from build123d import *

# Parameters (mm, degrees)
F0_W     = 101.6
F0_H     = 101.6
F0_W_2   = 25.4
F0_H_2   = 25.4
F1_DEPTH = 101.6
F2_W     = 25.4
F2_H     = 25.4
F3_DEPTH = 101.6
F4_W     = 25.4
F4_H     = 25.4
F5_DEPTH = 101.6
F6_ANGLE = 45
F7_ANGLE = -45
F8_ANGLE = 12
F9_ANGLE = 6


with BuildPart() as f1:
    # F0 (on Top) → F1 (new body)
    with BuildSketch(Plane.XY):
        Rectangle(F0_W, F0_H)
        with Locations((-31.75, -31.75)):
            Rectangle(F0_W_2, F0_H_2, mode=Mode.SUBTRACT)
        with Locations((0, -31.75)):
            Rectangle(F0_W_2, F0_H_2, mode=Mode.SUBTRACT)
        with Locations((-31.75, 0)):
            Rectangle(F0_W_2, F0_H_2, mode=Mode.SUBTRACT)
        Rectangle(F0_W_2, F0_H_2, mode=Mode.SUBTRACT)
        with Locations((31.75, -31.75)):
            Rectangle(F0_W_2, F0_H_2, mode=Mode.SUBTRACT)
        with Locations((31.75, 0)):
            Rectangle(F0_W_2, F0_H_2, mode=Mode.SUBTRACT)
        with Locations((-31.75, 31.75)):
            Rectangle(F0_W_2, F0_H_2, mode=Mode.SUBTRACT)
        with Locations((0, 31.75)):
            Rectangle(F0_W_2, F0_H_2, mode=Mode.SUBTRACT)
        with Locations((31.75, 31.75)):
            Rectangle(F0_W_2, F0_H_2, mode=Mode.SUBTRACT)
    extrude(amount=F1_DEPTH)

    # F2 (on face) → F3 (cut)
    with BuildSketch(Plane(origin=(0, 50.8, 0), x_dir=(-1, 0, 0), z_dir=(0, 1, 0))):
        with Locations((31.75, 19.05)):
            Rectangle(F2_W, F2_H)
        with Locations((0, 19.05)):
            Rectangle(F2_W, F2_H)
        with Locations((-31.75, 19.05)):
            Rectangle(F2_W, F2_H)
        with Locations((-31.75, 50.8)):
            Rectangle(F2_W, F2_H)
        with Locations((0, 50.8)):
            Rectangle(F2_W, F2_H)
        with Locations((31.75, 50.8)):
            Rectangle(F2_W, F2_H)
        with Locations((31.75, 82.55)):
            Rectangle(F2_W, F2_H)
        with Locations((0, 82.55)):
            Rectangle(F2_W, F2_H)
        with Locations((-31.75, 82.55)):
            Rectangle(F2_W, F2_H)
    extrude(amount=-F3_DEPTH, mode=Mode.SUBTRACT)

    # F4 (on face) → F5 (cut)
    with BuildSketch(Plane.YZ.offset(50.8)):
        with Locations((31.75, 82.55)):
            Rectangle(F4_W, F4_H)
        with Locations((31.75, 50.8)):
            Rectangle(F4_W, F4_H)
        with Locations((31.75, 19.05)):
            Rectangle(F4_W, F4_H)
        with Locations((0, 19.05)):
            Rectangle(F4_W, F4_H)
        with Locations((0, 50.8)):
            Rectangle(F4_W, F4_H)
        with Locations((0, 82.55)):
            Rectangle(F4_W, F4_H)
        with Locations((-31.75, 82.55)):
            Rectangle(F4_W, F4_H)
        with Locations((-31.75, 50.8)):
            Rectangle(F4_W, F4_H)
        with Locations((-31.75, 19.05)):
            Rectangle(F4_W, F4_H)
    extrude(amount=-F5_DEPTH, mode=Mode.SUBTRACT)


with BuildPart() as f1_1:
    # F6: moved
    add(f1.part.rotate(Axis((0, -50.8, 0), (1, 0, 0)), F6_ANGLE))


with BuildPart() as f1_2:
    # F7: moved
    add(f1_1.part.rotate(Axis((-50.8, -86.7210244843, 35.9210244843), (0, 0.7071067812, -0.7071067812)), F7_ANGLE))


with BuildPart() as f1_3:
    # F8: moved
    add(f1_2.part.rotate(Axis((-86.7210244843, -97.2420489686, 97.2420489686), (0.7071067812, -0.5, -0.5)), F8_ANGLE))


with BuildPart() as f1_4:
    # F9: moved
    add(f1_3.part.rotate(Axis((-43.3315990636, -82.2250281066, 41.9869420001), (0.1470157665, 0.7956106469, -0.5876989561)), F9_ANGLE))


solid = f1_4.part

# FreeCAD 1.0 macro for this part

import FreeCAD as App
import Part
import Sketcher
from FreeCAD import Vector
Q = App.Units.Quantity


def add_polygon(sketch, points):
    """Adds a closed chain of lines whose ends are joined by coincident constraints."""
    first, n = sketch.GeometryCount, len(points)
    for a, b in zip(points, points[1:] + points[:1]):
        sketch.addGeometry(Part.LineSegment(App.Vector(*a, 0), App.Vector(*b, 0)), False)
    for i in range(n):
        sketch.addConstraint(Sketcher.Constraint("Coincident", first + i, 2, first + (i + 1) % n, 1))

doc = App.newDocument("Part")
body = doc.addObject("PartDesign::Body", "Body")

# Sketch on XY plane
sketch1 = body.newObject("Sketcher::SketchObject", "Sketch")
sketch1.AttachmentSupport = (doc.getObject("XY_Plane"), [""])
sketch1.MapMode = "FlatFace"
add_polygon(sketch1, [(-51, 51), (-51, -51), (51, -51), (51, 51)])  # lines 0-3
add_polygon(sketch1, [(-19, -44), (-44, -44), (-44, -19), (-19, -19)])  # lines 4-7
add_polygon(sketch1, [(13, -44), (-13, -44), (-13, -19), (13, -19)])  # lines 8-11
add_polygon(sketch1, [(44, -44), (19, -44), (19, -19), (44, -19)])  # lines 12-15
add_polygon(sketch1, [(-19, -13), (-44, -13), (-44, 13), (-19, 13)])  # lines 16-19
add_polygon(sketch1, [(-19, 19), (-44, 19), (-44, 44), (-19, 44)])  # lines 20-23
add_polygon(sketch1, [(13, -13), (-13, -13), (-13, 13), (13, 13)])  # lines 24-27
add_polygon(sketch1, [(44, -13), (19, -13), (19, 13), (44, 13)])  # lines 28-31
add_polygon(sketch1, [(13, 19), (-13, 19), (-13, 44), (13, 44)])  # lines 32-35
add_polygon(sketch1, [(44, 19), (19, 19), (19, 44), (44, 44)])  # lines 36-39
sketch1.addConstraint([
    Sketcher.Constraint("Vertical", 0),
    Sketcher.Constraint("Horizontal", 1),
    Sketcher.Constraint("Vertical", 2),
    Sketcher.Constraint("Horizontal", 3),
    Sketcher.Constraint("Horizontal", 4),
    Sketcher.Constraint("Vertical", 5),
    Sketcher.Constraint("Horizontal", 6),
    Sketcher.Constraint("Vertical", 7),
    Sketcher.Constraint("Horizontal", 8),
    Sketcher.Constraint("Vertical", 9),
    Sketcher.Constraint("Horizontal", 10),
    Sketcher.Constraint("Vertical", 11),
    Sketcher.Constraint("Horizontal", 12),
    Sketcher.Constraint("Vertical", 13),
    Sketcher.Constraint("Horizontal", 14),
    Sketcher.Constraint("Vertical", 15),
    Sketcher.Constraint("Horizontal", 16),
    Sketcher.Constraint("Vertical", 17),
    Sketcher.Constraint("Horizontal", 18),
    Sketcher.Constraint("Vertical", 19),
    Sketcher.Constraint("Horizontal", 20),
    Sketcher.Constraint("Vertical", 21),
    Sketcher.Constraint("Horizontal", 22),
    Sketcher.Constraint("Vertical", 23),
    Sketcher.Constraint("Horizontal", 24),
    Sketcher.Constraint("Vertical", 25),
    Sketcher.Constraint("Horizontal", 26),
    Sketcher.Constraint("Vertical", 27),
    Sketcher.Constraint("Horizontal", 28),
    Sketcher.Constraint("Vertical", 29),
    Sketcher.Constraint("Horizontal", 30),
    Sketcher.Constraint("Vertical", 31),
    Sketcher.Constraint("Horizontal", 32),
    Sketcher.Constraint("Vertical", 33),
    Sketcher.Constraint("Horizontal", 34),
    Sketcher.Constraint("Vertical", 35),
    Sketcher.Constraint("Horizontal", 36),
    Sketcher.Constraint("Vertical", 37),
    Sketcher.Constraint("Horizontal", 38),
    Sketcher.Constraint("Vertical", 39),
    Sketcher.Constraint("Symmetric", 0, 2, 2, 2, -1, 1),
    Sketcher.Constraint("Symmetric", 14, 2, 20, 2, -1, 1),
    Sketcher.Constraint("Symmetric", 12, 2, 22, 2, -1, 1),
    Sketcher.Constraint("Symmetric", 24, 2, 26, 2, -1, 1),
    Sketcher.Constraint("Symmetric", 18, 2, 28, 2, -1, 1),
    Sketcher.Constraint("Symmetric", 16, 2, 30, 2, -1, 1),
    Sketcher.Constraint("Symmetric", 10, 2, 32, 2, -1, 1),
    Sketcher.Constraint("Symmetric", 8, 2, 34, 2, -1, 1),
    Sketcher.Constraint("Symmetric", 6, 2, 36, 2, -1, 1),
    Sketcher.Constraint("Symmetric", 4, 2, 38, 2, -1, 1),
    Sketcher.Constraint("Symmetric", 7, 2, 12, 2, -2),
    Sketcher.Constraint("Symmetric", 5, 2, 14, 2, -2),
    Sketcher.Constraint("Horizontal", 7, 2, 8, 2),
    Sketcher.Constraint("Horizontal", 6, 2, 9, 2),
    Sketcher.Constraint("Horizontal", 19, 2, 24, 2),
    Sketcher.Constraint("Horizontal", 18, 2, 25, 2),
    Sketcher.Constraint("Vertical", 5, 2, 16, 2),
    Sketcher.Constraint("Vertical", 7, 2, 18, 2),
    Sketcher.Constraint("Vertical", 9, 2, 24, 2),
    Sketcher.Constraint("Vertical", 11, 2, 26, 2),
    Sketcher.Constraint("Equal", 6, 8),
    Sketcher.Constraint("Equal", 3, 0),
    Sketcher.Constraint("Equal", 38, 5),
    Sketcher.Constraint("Equal", 15, 17),
    Sketcher.Constraint("DistanceX", 1, 1, 1, 2, Q("4 in")),
    Sketcher.Constraint("DistanceX", 4, 2, 4, 1, Q("1 in")),
    Sketcher.Constraint("DistanceX", 7, 2, 12, 2, Q("1.5 in")),
    Sketcher.Constraint("DistanceY", 5, 2, 20, 2, Q("1.5 in")),
])
pad1 = body.newObject("PartDesign::Pad", "Pad")
pad1.Profile = sketch1
pad1.Length = Q("4 in")

# Sketch on XZ plane
sketch2 = body.newObject("Sketcher::SketchObject", "Sketch001")
sketch2.AttachmentSupport = (doc.getObject("XZ_Plane"), [""])
sketch2.MapMode = "FlatFace"
sketch2.AttachmentOffset = App.Placement(Vector(0, 0, -2 * 25.4), App.Rotation())
add_polygon(sketch2, [(-19, 32), (-19, 6), (-44, 6), (-44, 32)])  # lines 0-3
add_polygon(sketch2, [(13, 32), (13, 6), (-13, 6), (-13, 32)])  # lines 4-7
add_polygon(sketch2, [(44, 32), (44, 6), (19, 6), (19, 32)])  # lines 8-11
add_polygon(sketch2, [(44, 64), (44, 38), (19, 38), (19, 64)])  # lines 12-15
add_polygon(sketch2, [(13, 64), (13, 38), (-13, 38), (-13, 64)])  # lines 16-19
add_polygon(sketch2, [(-19, 64), (-19, 38), (-44, 38), (-44, 64)])  # lines 20-23
add_polygon(sketch2, [(-19, 95), (-19, 70), (-44, 70), (-44, 95)])  # lines 24-27
add_polygon(sketch2, [(13, 95), (13, 70), (-13, 70), (-13, 95)])  # lines 28-31
add_polygon(sketch2, [(44, 95), (44, 70), (19, 70), (19, 95)])  # lines 32-35
sketch2.addConstraint([
    Sketcher.Constraint("Vertical", 0),
    Sketcher.Constraint("Horizontal", 1),
    Sketcher.Constraint("Vertical", 2),
    Sketcher.Constraint("Horizontal", 3),
    Sketcher.Constraint("Vertical", 4),
    Sketcher.Constraint("Horizontal", 5),
    Sketcher.Constraint("Vertical", 6),
    Sketcher.Constraint("Horizontal", 7),
    Sketcher.Constraint("Vertical", 8),
    Sketcher.Constraint("Horizontal", 9),
    Sketcher.Constraint("Vertical", 10),
    Sketcher.Constraint("Horizontal", 11),
    Sketcher.Constraint("Vertical", 12),
    Sketcher.Constraint("Horizontal", 13),
    Sketcher.Constraint("Vertical", 14),
    Sketcher.Constraint("Horizontal", 15),
    Sketcher.Constraint("Vertical", 16),
    Sketcher.Constraint("Horizontal", 17),
    Sketcher.Constraint("Vertical", 18),
    Sketcher.Constraint("Horizontal", 19),
    Sketcher.Constraint("Vertical", 20),
    Sketcher.Constraint("Horizontal", 21),
    Sketcher.Constraint("Vertical", 22),
    Sketcher.Constraint("Horizontal", 23),
    Sketcher.Constraint("Vertical", 24),
    Sketcher.Constraint("Horizontal", 25),
    Sketcher.Constraint("Vertical", 26),
    Sketcher.Constraint("Horizontal", 27),
    Sketcher.Constraint("Vertical", 28),
    Sketcher.Constraint("Horizontal", 29),
    Sketcher.Constraint("Vertical", 30),
    Sketcher.Constraint("Horizontal", 31),
    Sketcher.Constraint("Vertical", 32),
    Sketcher.Constraint("Horizontal", 33),
    Sketcher.Constraint("Vertical", 34),
    Sketcher.Constraint("Horizontal", 35),
    Sketcher.Constraint("Symmetric", 1, 2, 8, 2, -2),
    Sketcher.Constraint("Symmetric", 3, 2, 10, 2, -2),
    Sketcher.Constraint("Symmetric", 13, 2, 20, 2, -2),
    Sketcher.Constraint("Symmetric", 15, 2, 22, 2, -2),
    Sketcher.Constraint("Symmetric", 25, 2, 32, 2, -2),
    Sketcher.Constraint("Symmetric", 27, 2, 34, 2, -2),
    Sketcher.Constraint("Horizontal", 1, 2, 4, 2),
    Sketcher.Constraint("Horizontal", 3, 2, 6, 2),
    Sketcher.Constraint("Horizontal", 13, 2, 16, 2),
    Sketcher.Constraint("Horizontal", 15, 2, 18, 2),
    Sketcher.Constraint("Horizontal", 25, 2, 28, 2),
    Sketcher.Constraint("Horizontal", 27, 2, 30, 2),
    Sketcher.Constraint("Vertical", 11, 2, 12, 2),
    Sketcher.Constraint("Vertical", 10, 2, 13, 2),
    Sketcher.Constraint("Vertical", 7, 2, 16, 2),
    Sketcher.Constraint("Vertical", 6, 2, 17, 2),
    Sketcher.Constraint("Vertical", 23, 2, 24, 2),
    Sketcher.Constraint("Vertical", 22, 2, 25, 2),
    Sketcher.Constraint("Vertical", 19, 2, 28, 2),
    Sketcher.Constraint("Vertical", 18, 2, 29, 2),
    Sketcher.Constraint("Equal", 3, 5),
    Sketcher.Constraint("Equal", 35, 0),
    Sketcher.Constraint("Equal", 10, 12),
    Sketcher.Constraint("Equal", 22, 24),
    Sketcher.Constraint("DistanceX", 1, 2, 1, 1, Q("1 in")),
    Sketcher.Constraint("DistanceX", -1, 1, 4, 2, Q("0.5 in")),
    Sketcher.Constraint("DistanceY", -1, 1, 12, 2, Q("1.5 in")),
    Sketcher.Constraint("DistanceX", 0, 2, 8, 2, Q("2.5 in")),
    Sketcher.Constraint("DistanceY", -1, 1, 0, 2, Q("0.25 in")),
    Sketcher.Constraint("DistanceY", -1, 1, 24, 2, Q("2.75 in")),
])
pocket1 = body.newObject("PartDesign::Pocket", "Pocket")
pocket1.Profile = sketch2
pocket1.Length = Q("4 in")
pocket1.Reversed = True

# Sketch on YZ plane
sketch3 = body.newObject("Sketcher::SketchObject", "Sketch002")
sketch3.AttachmentSupport = (doc.getObject("YZ_Plane"), [""])
sketch3.MapMode = "FlatFace"
sketch3.AttachmentOffset = App.Placement(Vector(0, 0, 2 * 25.4), App.Rotation())
add_polygon(sketch3, [(19, 95), (19, 70), (44, 70), (44, 95)])  # lines 0-3
add_polygon(sketch3, [(19, 64), (19, 38), (44, 38), (44, 64)])  # lines 4-7
add_polygon(sketch3, [(19, 32), (19, 6), (44, 6), (44, 32)])  # lines 8-11
add_polygon(sketch3, [(-13, 32), (-13, 6), (13, 6), (13, 32)])  # lines 12-15
add_polygon(sketch3, [(-13, 64), (-13, 38), (13, 38), (13, 64)])  # lines 16-19
add_polygon(sketch3, [(-13, 95), (-13, 70), (13, 70), (13, 95)])  # lines 20-23
add_polygon(sketch3, [(-44, 95), (-44, 70), (-19, 70), (-19, 95)])  # lines 24-27
add_polygon(sketch3, [(-44, 64), (-44, 38), (-19, 38), (-19, 64)])  # lines 28-31
add_polygon(sketch3, [(-44, 32), (-44, 6), (-19, 6), (-19, 32)])  # lines 32-35
sketch3.addConstraint([
    Sketcher.Constraint("Vertical", 0),
    Sketcher.Constraint("Horizontal", 1),
    Sketcher.Constraint("Vertical", 2),
    Sketcher.Constraint("Horizontal", 3),
    Sketcher.Constraint("Vertical", 4),
    Sketcher.Constraint("Horizontal", 5),
    Sketcher.Constraint("Vertical", 6),
    Sketcher.Constraint("Horizontal", 7),
    Sketcher.Constraint("Vertical", 8),
    Sketcher.Constraint("Horizontal", 9),
    Sketcher.Constraint("Vertical", 10),
    Sketcher.Constraint("Horizontal", 11),
    Sketcher.Constraint("Vertical", 12),
    Sketcher.Constraint("Horizontal", 13),
    Sketcher.Constraint("Vertical", 14),
    Sketcher.Constraint("Horizontal", 15),
    Sketcher.Constraint("Vertical", 16),
    Sketcher.Constraint("Horizontal", 17),
    Sketcher.Constraint("Vertical", 18),
    Sketcher.Constraint("Horizontal", 19),
    Sketcher.Constraint("Vertical", 20),
    Sketcher.Constraint("Horizontal", 21),
    Sketcher.Constraint("Vertical", 22),
    Sketcher.Constraint("Horizontal", 23),
    Sketcher.Constraint("Vertical", 24),
    Sketcher.Constraint("Horizontal", 25),
    Sketcher.Constraint("Vertical", 26),
    Sketcher.Constraint("Horizontal", 27),
    Sketcher.Constraint("Vertical", 28),
    Sketcher.Constraint("Horizontal", 29),
    Sketcher.Constraint("Vertical", 30),
    Sketcher.Constraint("Horizontal", 31),
    Sketcher.Constraint("Vertical", 32),
    Sketcher.Constraint("Horizontal", 33),
    Sketcher.Constraint("Vertical", 34),
    Sketcher.Constraint("Horizontal", 35),
    Sketcher.Constraint("Symmetric", 1, 2, 24, 2, -2),
    Sketcher.Constraint("Symmetric", 3, 2, 26, 2, -2),
    Sketcher.Constraint("Symmetric", 5, 2, 28, 2, -2),
    Sketcher.Constraint("Symmetric", 7, 2, 30, 2, -2),
    Sketcher.Constraint("Symmetric", 9, 2, 32, 2, -2),
    Sketcher.Constraint("Symmetric", 11, 2, 34, 2, -2),
    Sketcher.Constraint("Horizontal", 9, 2, 12, 2),
    Sketcher.Constraint("Horizontal", 11, 2, 14, 2),
    Sketcher.Constraint("Horizontal", 5, 2, 16, 2),
    Sketcher.Constraint("Horizontal", 7, 2, 18, 2),
    Sketcher.Constraint("Horizontal", 1, 2, 20, 2),
    Sketcher.Constraint("Horizontal", 3, 2, 22, 2),
    Sketcher.Constraint("Vertical", 3, 2, 4, 2),
    Sketcher.Constraint("Vertical", 2, 2, 5, 2),
    Sketcher.Constraint("Vertical", 7, 2, 8, 2),
    Sketcher.Constraint("Vertical", 6, 2, 9, 2),
    Sketcher.Constraint("Vertical", 15, 2, 16, 2),
    Sketcher.Constraint("Vertical", 14, 2, 17, 2),
    Sketcher.Constraint("Vertical", 19, 2, 20, 2),
    Sketcher.Constraint("Vertical", 18, 2, 21, 2),
    Sketcher.Constraint("Equal", 11, 13),
    Sketcher.Constraint("Equal", 35, 0),
    Sketcher.Constraint("Equal", 2, 4),
    Sketcher.Constraint("Equal", 6, 8),
    Sketcher.Constraint("DistanceX", 1, 1, 1, 2, Q("1 in")),
    Sketcher.Constraint("DistanceY", -1, 1, 4, 2, Q("1.5 in")),
    Sketcher.Constraint("DistanceX", 12, 2, -1, 1, Q("0.5 in")),
    Sketcher.Constraint("DistanceY", 8, 2, 0, 2, Q("2.5 in")),
    Sketcher.Constraint("DistanceX", -1, 1, 0, 2, Q("0.75 in")),
    Sketcher.Constraint("DistanceY", -1, 1, 0, 2, Q("2.75 in")),
])
pocket2 = body.newObject("PartDesign::Pocket", "Pocket001")
pocket2.Profile = sketch3
pocket2.Length = Q("4 in")
body2 = doc.addObject("PartDesign::Body", "Body001")
doc.recompute()

body.Placement = App.Placement(Vector(0, -14.878976, 35.921024), App.Rotation(Vector(1, 0, 0), 45))
boolean = body2.newObject("PartDesign::Boolean", "Boolean")
boolean.Type = "Fuse"
boolean.addObjects([body])
body3 = doc.addObject("PartDesign::Body", "Body002")
doc.recompute()

body2.Placement = App.Placement(Vector(-40.278976, 17.960512, 17.960512), App.Rotation(Vector(0, 0.707106781, -0.707106781), 315))
boolean2 = body3.newObject("PartDesign::Boolean", "Boolean001")
boolean2.Type = "Fuse"
boolean2.addObjects([body2])
body4 = doc.addObject("PartDesign::Body", "Body003")
doc.recompute()

body3.Placement = App.Placement(Vector(19.270228, 2.485979, 24.766238), App.Rotation(Vector(0.707106781, -0.5, -0.5), 12))
boolean3 = body4.newObject("PartDesign::Boolean", "Boolean002")
boolean3.Type = "Fuse"
boolean3.addObjects([body3])
body5 = doc.addObject("PartDesign::Body", "Body004")
doc.recompute()

body4.Placement = App.Placement(Vector(1.399702, -2.046687, -2.420607), App.Rotation(Vector(0.147015766, 0.795610647, -0.587698956), 6))
boolean4 = body5.newObject("PartDesign::Boolean", "Boolean003")
boolean4.Type = "Fuse"
boolean4.addObjects([body4])

doc.recompute()
